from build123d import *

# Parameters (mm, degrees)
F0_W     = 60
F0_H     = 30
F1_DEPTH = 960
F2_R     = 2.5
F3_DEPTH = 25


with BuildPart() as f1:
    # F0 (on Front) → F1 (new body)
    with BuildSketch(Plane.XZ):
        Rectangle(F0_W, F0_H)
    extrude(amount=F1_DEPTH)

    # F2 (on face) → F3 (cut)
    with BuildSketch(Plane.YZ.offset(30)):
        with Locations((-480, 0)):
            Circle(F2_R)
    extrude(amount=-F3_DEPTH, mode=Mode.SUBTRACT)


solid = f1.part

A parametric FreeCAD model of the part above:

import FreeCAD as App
import Part
import Sketcher

V = App.Vector
Q = App.Units.Quantity


def add_polygon(sketch, points):
    """Adds a closed chain of lines whose ends are joined by coincident constraints."""
    first, n = sketch.GeometryCount, len(points)
    for a, b in zip(points, points[1:] + points[:1]):
        sketch.addGeometry(Part.LineSegment(App.Vector(*a, 0), App.Vector(*b, 0)), False)
    for i in range(n):
        sketch.addConstraint(Sketcher.Constraint("Coincident", first + i, 2, first + (i + 1) % n, 1))

doc = App.newDocument("Part")
body = doc.addObject("PartDesign::Body", "Body")

sketch1 = doc.addObject("Sketcher::SketchObject", "Sketch")
body.addObject(sketch1)
sketch1.AttachmentSupport = (doc.XZ_Plane, [""])
sketch1.MapMode = "FlatFace"
add_polygon(sketch1, [(-30, 15), (-30, -15), (30, -15), (30, 15)])
sketch1.addConstraint(Sketcher.Constraint("Vertical", 0))
sketch1.addConstraint(Sketcher.Constraint("Horizontal", 1))
sketch1.addConstraint(Sketcher.Constraint("Vertical", 2))
sketch1.addConstraint(Sketcher.Constraint("Horizontal", 3))
sketch1.addConstraint(Sketcher.Constraint("Symmetric", 0, 2, 2, 2, -1, 1))
sketch1.addConstraint(Sketcher.Constraint("DistanceX", 1, 1, 1, 2, Q("60 mm")))
sketch1.addConstraint(Sketcher.Constraint("DistanceY", 0, 2, 0, 1, Q("30 mm")))
pad1 = doc.addObject("PartDesign::Pad", "Pad")
body.addObject(pad1)
pad1.Profile = sketch1
pad1.Length = 960

sketch2 = doc.addObject("Sketcher::SketchObject", "Sketch001")
body.addObject(sketch2)
sketch2.AttachmentSupport = (doc.YZ_Plane, [""])
sketch2.MapMode = "FlatFace"
sketch2.AttachmentOffset = App.Placement(V(0, 0, 30), App.Rotation())
sketch2.addGeometry(Part.Circle(V(-480, 0, 0), V(0, 0, 1), 2.5), False)
sketch2.addConstraint(Sketcher.Constraint("PointOnObject", 0, 3, -1))
sketch2.addConstraint(Sketcher.Constraint("Diameter", 0, Q("5 mm")))
sketch2.addConstraint(Sketcher.Constraint("DistanceX", 0, 3, -1, 1, Q("480 mm")))
pocket1 = doc.addObject("PartDesign::Pocket", "Pocket")
body.addObject(pocket1)
pocket1.Profile = sketch2
pocket1.Length = 25

doc.recompute()
